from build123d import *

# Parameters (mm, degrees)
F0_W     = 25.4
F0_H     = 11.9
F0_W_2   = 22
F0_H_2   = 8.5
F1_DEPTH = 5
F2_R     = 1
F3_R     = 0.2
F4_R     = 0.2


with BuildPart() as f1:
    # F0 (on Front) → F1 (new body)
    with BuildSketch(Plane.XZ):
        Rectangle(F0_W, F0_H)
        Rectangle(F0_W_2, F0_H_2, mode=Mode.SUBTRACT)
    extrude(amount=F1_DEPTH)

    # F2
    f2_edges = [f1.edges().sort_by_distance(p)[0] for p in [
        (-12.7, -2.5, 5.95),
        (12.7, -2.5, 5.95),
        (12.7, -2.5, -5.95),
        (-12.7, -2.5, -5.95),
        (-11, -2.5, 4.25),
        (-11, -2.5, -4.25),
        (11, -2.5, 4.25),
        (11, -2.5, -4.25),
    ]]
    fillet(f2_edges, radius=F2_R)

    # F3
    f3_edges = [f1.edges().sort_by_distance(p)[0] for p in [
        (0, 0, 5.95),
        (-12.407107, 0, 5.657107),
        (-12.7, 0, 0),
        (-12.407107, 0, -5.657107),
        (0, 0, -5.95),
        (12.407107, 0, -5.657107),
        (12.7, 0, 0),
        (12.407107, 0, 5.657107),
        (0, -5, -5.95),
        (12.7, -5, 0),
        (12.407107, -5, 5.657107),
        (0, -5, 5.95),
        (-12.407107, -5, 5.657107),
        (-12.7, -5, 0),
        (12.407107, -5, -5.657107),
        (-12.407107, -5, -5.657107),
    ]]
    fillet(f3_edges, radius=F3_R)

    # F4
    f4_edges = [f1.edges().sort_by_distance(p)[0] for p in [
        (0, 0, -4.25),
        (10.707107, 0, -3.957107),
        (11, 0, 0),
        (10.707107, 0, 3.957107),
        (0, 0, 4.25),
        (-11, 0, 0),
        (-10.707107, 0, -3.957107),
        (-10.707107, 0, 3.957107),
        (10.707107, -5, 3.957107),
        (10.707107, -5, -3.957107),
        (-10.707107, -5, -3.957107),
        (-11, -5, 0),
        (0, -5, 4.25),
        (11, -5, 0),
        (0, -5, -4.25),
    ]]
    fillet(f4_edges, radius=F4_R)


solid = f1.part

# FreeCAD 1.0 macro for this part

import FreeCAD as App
import Part
import Sketcher

V = App.Vector


def edges_at(feature, points):
    """Names of the edges that pass closest to the given points."""
    edges = feature.Shape.Edges
    near = lambda p: min(range(len(edges)), key=lambda i: edges[i].distToShape(Part.Vertex(*p))[0])
    return sorted({f"Edge{near(p) + 1}" for p in points})

doc = App.newDocument("Part")
params = doc.addObject("Spreadsheet::Sheet", "Params")
for row, (alias, value) in enumerate([
    ("sketch1_width", "22 mm"),
    ("sketch1_width2", "25.4 mm"),
    ("sketch1_height", "11.9 mm"),
    ("sketch1_height2", "8.5 mm"),
    ("pad1_length", "5 mm"),
    ("fillet_radius", "1 mm"),
    ("fillet2_radius", "0.2 mm"),
    ("fillet3_radius", "0.2 mm"),
], start=1):
    params.set(f"A{row}", alias)
    params.set(f"B{row}", "=" + value)
    params.setAlias(f"B{row}", alias)

body = doc.addObject("PartDesign::Body", "Body")

# Sketch on XZ plane
sketch1 = doc.addObject("Sketcher::SketchObject", "Sketch")
body.addObject(sketch1)
sketch1.AttachmentSupport = (doc.XZ_Plane, [""])
sketch1.MapMode = "FlatFace"
sketch1.addGeometry([
    Part.LineSegment(V(-12.7, 5.95, 0), V(-12.7, -5.95, 0)),  # 0
    Part.LineSegment(V(-12.7, -5.95, 0), V(12.7, -5.95, 0)),  # 1
    Part.LineSegment(V(12.7, -5.95, 0), V(12.7, 5.95, 0)),  # 2
    Part.LineSegment(V(12.7, 5.95, 0), V(-12.7, 5.95, 0)),  # 3
    Part.LineSegment(V(11, -4.25, 0), V(-11, -4.25, 0)),  # 4
    Part.LineSegment(V(-11, -4.25, 0), V(-11, 4.25, 0)),  # 5
    Part.LineSegment(V(-11, 4.25, 0), V(11, 4.25, 0)),  # 6
    Part.LineSegment(V(11, 4.25, 0), V(11, -4.25, 0)),  # 7
], False)
sketch1.addConstraint([
    Sketcher.Constraint("Coincident", 0, 2, 1, 1),
    Sketcher.Constraint("Coincident", 1, 2, 2, 1),
    Sketcher.Constraint("Coincident", 2, 2, 3, 1),
    Sketcher.Constraint("Coincident", 3, 2, 0, 1),
    Sketcher.Constraint("Coincident", 4, 2, 5, 1),
    Sketcher.Constraint("Coincident", 5, 2, 6, 1),
    Sketcher.Constraint("Coincident", 6, 2, 7, 1),
    Sketcher.Constraint("Coincident", 7, 2, 4, 1),
    Sketcher.Constraint("Vertical", 0),
    Sketcher.Constraint("Horizontal", 1),
    Sketcher.Constraint("Vertical", 2),
    Sketcher.Constraint("Horizontal", 3),
    Sketcher.Constraint("Horizontal", 4),
    Sketcher.Constraint("Vertical", 5),
    Sketcher.Constraint("Horizontal", 6),
    Sketcher.Constraint("Vertical", 7),
    Sketcher.Constraint("Symmetric", 0, 2, 2, 2, -1, 1),
    Sketcher.Constraint("Symmetric", 4, 2, 6, 2, -1, 1),
    Sketcher.Constraint("DistanceX", 4, 2, 4, 1, 22.0),
    Sketcher.Constraint("DistanceX", 1, 1, 1, 2, 25.4),
    Sketcher.Constraint("DistanceY", 0, 2, 0, 1, 11.9),
    Sketcher.Constraint("DistanceY", 5, 1, 5, 2, 8.5),
])
sketch1.setExpression("Constraints[18]", "Params.sketch1_width")
sketch1.setExpression("Constraints[19]", "Params.sketch1_width2")
sketch1.setExpression("Constraints[20]", "Params.sketch1_height")
sketch1.setExpression("Constraints[21]", "Params.sketch1_height2")
pad1 = doc.addObject("PartDesign::Pad", "Pad")
body.addObject(pad1)
pad1.Profile = sketch1
pad1.setExpression("Length", "Params.pad1_length")
doc.recompute()

fillet = doc.addObject("PartDesign::Fillet", "Fillet")
body.addObject(fillet)
fillet.Base = (pad1, edges_at(pad1, [
    (-12.7, -2.5, 5.95),
    (12.7, -2.5, 5.95),
    (12.7, -2.5, -5.95),
    (-12.7, -2.5, -5.95),
    (-11, -2.5, 4.25),
    (-11, -2.5, -4.25),
    (11, -2.5, 4.25),
    (11, -2.5, -4.25),
]))
fillet.setExpression("Radius", "Params.fillet_radius")
doc.recompute()

fillet2 = doc.addObject("PartDesign::Fillet", "Fillet001")
body.addObject(fillet2)
fillet2.Base = (fillet, edges_at(fillet, [
    (0, 0, 5.95),
    (-12.407, 0, 5.657),
    (-12.7, 0, 0),
    (-12.407, 0, -5.657),
    (0, 0, -5.95),
    (12.407, 0, -5.657),
    (12.7, 0, 0),
    (12.407, 0, 5.657),
    (0, -5, -5.95),
    (12.7, -5, 0),
    (12.407, -5, 5.657),
    (0, -5, 5.95),
    (-12.407, -5, 5.657),
    (-12.7, -5, 0),
    (12.407, -5, -5.657),
    (-12.407, -5, -5.657),
]))
fillet2.setExpression("Radius", "Params.fillet2_radius")
doc.recompute()

fillet3 = doc.addObject("PartDesign::Fillet", "Fillet002")
body.addObject(fillet3)
fillet3.Base = (fillet2, edges_at(fillet2, [
    (0, 0, -4.25),
    (10.707, 0, -3.957),
    (11, 0, 0),
    (10.707, 0, 3.957),
    (0, 0, 4.25),
    (-11, 0, 0),
    (-10.707, 0, -3.957),
    (-10.707, 0, 3.957),
    (10.707, -5, 3.957),
    (10.707, -5, -3.957),
    (-10.707, -5, -3.957),
    (-11, -5, 0),
    (0, -5, 4.25),
    (11, -5, 0),
    (0, -5, -4.25),
]))
fillet3.setExpression("Radius", "Params.fillet3_radius")

doc.recompute()
